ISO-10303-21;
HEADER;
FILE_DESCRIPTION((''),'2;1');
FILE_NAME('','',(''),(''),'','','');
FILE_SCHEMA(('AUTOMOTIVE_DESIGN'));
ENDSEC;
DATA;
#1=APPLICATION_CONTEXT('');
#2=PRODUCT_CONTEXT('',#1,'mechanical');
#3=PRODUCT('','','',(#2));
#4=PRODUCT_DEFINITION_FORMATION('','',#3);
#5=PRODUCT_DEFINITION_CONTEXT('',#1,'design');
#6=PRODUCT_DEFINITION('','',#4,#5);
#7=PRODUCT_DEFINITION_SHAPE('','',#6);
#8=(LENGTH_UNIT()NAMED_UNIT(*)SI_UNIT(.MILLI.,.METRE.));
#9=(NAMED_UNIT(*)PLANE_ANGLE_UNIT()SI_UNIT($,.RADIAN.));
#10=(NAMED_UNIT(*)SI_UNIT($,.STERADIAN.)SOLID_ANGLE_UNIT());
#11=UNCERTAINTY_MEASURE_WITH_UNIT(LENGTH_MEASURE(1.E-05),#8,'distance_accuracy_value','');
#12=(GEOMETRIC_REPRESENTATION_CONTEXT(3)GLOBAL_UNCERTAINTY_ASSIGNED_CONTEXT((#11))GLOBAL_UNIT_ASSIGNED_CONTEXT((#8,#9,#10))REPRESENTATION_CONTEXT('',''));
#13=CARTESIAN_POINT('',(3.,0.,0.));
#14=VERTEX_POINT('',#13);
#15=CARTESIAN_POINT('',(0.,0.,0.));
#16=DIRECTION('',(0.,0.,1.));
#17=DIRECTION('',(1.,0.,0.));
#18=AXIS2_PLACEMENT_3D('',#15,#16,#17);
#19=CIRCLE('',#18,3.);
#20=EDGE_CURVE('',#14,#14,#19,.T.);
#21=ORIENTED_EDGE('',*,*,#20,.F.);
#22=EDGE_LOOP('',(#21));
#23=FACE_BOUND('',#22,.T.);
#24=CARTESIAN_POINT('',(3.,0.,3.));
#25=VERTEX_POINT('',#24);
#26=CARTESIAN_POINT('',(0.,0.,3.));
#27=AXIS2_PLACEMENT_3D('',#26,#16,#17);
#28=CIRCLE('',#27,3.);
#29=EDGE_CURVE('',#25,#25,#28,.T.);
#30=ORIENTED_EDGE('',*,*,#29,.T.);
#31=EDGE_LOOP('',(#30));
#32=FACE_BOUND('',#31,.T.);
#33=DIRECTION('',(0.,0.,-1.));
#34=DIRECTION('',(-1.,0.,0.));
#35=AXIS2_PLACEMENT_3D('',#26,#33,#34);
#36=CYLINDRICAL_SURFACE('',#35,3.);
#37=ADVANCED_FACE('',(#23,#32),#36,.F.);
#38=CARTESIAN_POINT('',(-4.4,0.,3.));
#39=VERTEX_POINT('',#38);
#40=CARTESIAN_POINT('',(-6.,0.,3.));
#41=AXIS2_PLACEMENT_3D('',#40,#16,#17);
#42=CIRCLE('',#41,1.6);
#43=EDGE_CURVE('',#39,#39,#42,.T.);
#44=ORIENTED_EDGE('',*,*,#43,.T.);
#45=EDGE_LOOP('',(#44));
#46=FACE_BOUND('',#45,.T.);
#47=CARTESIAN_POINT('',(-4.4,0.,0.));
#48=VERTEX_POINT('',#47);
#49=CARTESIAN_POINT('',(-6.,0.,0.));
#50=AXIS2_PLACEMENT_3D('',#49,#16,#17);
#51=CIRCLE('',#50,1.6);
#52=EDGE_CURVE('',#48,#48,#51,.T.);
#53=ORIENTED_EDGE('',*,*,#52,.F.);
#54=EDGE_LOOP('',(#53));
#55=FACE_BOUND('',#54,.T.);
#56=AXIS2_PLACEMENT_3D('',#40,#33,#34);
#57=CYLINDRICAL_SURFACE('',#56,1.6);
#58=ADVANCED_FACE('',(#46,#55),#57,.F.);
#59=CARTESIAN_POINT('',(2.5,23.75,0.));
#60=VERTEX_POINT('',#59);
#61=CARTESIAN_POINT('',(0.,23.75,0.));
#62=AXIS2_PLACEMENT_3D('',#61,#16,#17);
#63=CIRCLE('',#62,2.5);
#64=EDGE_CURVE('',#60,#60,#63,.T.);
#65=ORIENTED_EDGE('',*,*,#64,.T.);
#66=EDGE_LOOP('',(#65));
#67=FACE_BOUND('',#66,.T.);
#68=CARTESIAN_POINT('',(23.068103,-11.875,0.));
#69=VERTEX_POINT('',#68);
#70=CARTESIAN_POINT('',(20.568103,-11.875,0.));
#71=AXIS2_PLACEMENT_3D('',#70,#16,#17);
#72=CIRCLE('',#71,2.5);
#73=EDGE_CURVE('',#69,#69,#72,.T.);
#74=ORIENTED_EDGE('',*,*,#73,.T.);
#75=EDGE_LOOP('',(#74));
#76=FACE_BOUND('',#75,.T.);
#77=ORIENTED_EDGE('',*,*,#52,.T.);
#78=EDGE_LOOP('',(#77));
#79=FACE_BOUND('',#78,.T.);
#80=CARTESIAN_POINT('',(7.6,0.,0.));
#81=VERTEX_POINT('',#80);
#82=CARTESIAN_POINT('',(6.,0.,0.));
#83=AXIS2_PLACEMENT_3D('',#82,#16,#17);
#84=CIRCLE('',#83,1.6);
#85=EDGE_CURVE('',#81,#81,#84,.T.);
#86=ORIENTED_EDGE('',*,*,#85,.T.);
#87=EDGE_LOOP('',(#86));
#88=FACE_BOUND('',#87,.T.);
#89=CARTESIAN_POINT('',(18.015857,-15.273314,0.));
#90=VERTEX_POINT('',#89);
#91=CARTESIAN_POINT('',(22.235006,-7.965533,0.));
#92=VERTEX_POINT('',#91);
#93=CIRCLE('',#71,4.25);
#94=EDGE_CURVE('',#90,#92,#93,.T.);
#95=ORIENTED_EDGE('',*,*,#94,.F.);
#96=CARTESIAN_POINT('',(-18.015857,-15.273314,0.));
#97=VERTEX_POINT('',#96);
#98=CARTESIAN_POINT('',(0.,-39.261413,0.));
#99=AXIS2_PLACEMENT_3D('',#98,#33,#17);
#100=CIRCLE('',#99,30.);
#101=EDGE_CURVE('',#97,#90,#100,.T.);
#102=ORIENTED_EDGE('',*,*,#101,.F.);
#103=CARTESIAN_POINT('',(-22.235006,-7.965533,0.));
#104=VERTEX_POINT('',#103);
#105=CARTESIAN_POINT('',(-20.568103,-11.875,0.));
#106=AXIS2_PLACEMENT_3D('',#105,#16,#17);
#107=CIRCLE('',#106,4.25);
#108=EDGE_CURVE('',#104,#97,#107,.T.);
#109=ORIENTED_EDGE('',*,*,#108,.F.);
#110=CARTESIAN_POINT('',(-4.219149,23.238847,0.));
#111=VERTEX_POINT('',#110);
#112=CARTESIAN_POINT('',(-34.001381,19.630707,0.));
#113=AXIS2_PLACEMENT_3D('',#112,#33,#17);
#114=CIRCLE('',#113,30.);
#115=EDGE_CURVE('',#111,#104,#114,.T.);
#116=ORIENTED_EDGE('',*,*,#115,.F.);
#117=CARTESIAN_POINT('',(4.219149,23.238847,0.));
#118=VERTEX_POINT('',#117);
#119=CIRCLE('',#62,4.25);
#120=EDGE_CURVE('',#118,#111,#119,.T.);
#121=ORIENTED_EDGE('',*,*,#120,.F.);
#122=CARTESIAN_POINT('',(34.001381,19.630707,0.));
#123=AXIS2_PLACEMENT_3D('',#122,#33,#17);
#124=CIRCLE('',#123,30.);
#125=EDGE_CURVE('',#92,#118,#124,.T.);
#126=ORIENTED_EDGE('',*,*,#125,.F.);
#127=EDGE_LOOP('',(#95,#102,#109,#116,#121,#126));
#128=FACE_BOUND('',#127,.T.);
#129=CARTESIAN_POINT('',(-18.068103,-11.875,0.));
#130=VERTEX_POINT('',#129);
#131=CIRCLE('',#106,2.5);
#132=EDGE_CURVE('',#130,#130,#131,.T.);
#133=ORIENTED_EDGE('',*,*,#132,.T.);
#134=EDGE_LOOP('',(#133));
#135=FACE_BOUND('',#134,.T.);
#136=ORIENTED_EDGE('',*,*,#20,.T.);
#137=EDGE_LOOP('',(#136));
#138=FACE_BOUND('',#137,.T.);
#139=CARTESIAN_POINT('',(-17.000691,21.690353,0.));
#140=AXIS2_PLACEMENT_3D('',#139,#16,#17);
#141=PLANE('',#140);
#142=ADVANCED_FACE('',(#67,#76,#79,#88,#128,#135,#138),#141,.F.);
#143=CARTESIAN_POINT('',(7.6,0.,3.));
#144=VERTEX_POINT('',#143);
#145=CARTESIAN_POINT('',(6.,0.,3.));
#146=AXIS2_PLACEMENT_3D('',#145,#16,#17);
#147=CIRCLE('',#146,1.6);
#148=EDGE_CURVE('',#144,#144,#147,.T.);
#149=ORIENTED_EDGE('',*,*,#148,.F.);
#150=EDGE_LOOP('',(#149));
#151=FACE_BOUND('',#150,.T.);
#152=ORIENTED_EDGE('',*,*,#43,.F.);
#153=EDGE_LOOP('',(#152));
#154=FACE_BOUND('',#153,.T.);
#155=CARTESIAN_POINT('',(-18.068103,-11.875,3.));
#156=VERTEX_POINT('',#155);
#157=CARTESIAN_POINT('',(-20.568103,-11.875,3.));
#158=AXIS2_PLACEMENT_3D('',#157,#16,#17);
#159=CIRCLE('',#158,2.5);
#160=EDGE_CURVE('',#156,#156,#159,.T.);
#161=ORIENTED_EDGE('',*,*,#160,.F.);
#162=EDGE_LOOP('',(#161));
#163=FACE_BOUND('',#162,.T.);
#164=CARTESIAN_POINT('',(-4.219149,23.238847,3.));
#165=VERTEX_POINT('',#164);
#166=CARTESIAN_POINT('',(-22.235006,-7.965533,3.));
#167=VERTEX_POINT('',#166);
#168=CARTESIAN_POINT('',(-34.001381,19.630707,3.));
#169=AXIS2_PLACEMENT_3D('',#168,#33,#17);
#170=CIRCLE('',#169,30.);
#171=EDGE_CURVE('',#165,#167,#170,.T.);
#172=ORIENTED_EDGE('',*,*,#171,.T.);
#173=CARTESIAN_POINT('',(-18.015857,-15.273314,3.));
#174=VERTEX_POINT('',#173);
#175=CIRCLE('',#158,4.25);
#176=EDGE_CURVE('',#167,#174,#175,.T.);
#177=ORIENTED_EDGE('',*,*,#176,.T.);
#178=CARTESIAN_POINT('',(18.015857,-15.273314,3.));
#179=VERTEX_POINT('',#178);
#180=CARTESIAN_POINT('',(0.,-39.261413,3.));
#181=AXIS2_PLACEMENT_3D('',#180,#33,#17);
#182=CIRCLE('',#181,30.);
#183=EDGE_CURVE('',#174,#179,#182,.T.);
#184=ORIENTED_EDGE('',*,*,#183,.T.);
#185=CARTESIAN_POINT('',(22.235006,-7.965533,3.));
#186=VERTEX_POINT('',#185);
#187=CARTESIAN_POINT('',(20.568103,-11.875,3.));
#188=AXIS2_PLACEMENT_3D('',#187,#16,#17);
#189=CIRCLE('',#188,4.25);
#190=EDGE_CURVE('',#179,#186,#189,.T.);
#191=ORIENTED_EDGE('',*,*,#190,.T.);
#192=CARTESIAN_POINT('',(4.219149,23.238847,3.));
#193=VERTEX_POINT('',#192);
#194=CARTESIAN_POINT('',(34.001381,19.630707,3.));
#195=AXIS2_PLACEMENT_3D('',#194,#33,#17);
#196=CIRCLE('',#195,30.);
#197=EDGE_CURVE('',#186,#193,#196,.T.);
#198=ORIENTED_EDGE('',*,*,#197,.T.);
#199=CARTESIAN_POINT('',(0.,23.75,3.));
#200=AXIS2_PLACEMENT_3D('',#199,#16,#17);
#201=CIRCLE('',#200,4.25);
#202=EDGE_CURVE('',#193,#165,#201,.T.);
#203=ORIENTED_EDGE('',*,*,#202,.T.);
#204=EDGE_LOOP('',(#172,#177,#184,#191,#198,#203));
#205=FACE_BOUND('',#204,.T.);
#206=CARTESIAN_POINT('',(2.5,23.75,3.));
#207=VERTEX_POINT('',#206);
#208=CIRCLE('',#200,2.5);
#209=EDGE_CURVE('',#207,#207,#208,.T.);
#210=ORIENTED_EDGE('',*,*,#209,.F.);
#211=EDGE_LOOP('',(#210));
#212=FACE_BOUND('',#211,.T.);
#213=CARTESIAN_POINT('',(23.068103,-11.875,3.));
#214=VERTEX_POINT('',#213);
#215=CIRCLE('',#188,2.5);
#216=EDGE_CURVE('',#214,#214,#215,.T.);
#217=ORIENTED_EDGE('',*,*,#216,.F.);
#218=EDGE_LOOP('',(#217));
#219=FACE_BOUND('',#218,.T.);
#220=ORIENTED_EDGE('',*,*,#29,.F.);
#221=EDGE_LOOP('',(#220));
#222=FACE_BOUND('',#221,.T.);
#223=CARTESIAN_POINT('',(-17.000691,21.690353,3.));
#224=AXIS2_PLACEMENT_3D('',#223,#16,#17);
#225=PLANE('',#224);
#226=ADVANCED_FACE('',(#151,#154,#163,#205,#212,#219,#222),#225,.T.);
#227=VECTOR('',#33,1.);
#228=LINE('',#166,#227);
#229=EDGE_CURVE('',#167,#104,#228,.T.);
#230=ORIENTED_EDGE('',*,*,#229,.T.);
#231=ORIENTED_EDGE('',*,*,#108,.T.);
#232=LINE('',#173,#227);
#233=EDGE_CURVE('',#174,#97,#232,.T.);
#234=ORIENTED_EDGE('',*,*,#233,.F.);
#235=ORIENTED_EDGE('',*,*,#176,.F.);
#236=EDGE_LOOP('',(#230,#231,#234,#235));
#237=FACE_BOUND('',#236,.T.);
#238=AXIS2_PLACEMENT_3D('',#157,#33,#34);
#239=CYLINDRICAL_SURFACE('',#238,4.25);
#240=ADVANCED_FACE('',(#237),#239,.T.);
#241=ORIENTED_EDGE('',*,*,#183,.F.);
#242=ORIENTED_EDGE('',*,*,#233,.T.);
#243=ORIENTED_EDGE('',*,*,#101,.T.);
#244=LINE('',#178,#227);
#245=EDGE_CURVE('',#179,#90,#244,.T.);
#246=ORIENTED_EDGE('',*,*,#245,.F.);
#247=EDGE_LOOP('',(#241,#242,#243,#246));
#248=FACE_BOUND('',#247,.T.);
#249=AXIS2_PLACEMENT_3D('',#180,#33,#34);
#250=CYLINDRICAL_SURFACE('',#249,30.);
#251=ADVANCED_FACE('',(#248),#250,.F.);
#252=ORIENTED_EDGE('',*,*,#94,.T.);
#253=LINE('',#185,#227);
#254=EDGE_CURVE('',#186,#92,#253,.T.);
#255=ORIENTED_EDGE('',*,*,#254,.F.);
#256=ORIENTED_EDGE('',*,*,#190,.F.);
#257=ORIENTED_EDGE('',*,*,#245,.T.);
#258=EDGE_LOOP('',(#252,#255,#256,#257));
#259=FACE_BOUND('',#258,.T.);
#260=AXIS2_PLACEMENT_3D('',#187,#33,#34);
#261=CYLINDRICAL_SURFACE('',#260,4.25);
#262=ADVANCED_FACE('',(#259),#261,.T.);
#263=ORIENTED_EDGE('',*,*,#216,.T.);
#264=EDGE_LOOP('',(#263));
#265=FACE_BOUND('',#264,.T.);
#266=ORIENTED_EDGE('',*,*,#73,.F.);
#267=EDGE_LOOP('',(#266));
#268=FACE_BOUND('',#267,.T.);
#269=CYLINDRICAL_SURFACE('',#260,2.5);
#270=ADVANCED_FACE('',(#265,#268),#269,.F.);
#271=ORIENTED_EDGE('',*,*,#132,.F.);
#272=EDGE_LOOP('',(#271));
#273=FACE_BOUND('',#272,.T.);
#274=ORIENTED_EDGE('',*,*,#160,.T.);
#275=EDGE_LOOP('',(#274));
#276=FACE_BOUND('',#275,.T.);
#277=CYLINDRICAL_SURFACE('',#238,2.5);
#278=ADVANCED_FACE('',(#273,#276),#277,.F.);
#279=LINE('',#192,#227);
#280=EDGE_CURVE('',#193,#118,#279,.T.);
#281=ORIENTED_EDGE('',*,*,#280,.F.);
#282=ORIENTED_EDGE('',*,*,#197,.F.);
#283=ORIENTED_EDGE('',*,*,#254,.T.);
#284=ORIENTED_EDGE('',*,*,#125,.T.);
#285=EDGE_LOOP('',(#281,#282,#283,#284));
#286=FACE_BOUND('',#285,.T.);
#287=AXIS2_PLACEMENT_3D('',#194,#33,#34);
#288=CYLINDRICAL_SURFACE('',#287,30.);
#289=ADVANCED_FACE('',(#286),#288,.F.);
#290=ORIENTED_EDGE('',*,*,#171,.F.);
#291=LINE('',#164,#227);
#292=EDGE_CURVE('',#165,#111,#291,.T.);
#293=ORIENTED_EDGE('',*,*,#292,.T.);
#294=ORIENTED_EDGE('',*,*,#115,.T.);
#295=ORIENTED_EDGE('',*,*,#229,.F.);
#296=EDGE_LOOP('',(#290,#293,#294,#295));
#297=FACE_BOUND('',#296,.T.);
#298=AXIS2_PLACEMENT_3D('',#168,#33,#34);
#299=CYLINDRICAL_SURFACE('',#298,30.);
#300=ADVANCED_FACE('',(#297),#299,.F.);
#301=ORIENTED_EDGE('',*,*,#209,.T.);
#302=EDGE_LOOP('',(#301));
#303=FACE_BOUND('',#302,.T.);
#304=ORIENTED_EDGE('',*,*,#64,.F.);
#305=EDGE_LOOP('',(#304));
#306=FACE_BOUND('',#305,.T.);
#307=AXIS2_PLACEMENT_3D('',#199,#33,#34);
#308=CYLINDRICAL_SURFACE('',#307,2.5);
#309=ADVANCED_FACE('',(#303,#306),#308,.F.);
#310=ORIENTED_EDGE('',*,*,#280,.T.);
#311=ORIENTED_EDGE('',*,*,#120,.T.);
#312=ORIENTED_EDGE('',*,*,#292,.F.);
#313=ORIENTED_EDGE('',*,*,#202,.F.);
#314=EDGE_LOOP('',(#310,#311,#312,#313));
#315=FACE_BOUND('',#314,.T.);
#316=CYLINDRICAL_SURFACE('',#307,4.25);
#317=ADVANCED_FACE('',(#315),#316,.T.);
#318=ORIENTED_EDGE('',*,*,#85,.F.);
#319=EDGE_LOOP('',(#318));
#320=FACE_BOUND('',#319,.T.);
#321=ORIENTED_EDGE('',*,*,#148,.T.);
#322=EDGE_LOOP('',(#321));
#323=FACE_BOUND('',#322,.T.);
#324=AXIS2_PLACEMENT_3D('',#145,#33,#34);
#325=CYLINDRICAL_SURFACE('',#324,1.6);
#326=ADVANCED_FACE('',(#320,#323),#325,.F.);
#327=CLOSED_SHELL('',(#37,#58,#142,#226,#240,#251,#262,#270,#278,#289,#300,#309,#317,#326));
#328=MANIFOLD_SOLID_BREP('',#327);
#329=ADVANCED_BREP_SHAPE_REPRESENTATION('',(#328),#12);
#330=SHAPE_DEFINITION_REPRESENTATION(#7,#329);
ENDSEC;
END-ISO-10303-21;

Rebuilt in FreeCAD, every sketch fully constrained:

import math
import FreeCAD as App
import Part
import Sketcher

V = App.Vector

doc = App.newDocument("Part")
body = doc.addObject("PartDesign::Body", "Body")

sketch1 = doc.addObject("Sketcher::SketchObject", "Sketch")
body.addObject(sketch1)
sketch1.AttachmentSupport = (doc.XY_Plane, [""])
sketch1.MapMode = "FlatFace"
sketch1.addGeometry([
    Part.ArcOfCircle(Part.Circle(V(-20.6, -11.9, 0), V(0, 0, 1), 4.2), math.radians(113), math.radians(307)),
    Part.ArcOfCircle(Part.Circle(V(0, -39.3, 0), V(0, 0, 1), 30), math.radians(53), math.radians(127)),
    Part.ArcOfCircle(Part.Circle(V(20.6, -11.9, 0), V(0, 0, 1), 4.2), math.radians(-127), math.radians(67)),
    Part.ArcOfCircle(Part.Circle(V(34, 19.6, 0), V(0, 0, 1), 30), math.radians(173), math.radians(247)),
    Part.ArcOfCircle(Part.Circle(V(0, 23.8, 0), V(0, 0, 1), 4.2), math.radians(-7), math.radians(187)),
    Part.ArcOfCircle(Part.Circle(V(-34, 19.6, 0), V(0, 0, 1), 30), math.radians(-67), math.radians(7)),
    Part.Circle(V(-20.6, -11.9, 0), V(0, 0, 1), 2.5),
    Part.Circle(V(-6, 0, 0), V(0, 0, 1), 1.6),
    Part.Circle(V(20.6, -11.9, 0), V(0, 0, 1), 2.5),
    Part.Circle(V(0, 0, 0), V(0, 0, 1), 3),
    Part.Circle(V(6, 0, 0), V(0, 0, 1), 1.6),
    Part.Circle(V(0, 23.8, 0), V(0, 0, 1), 2.5),
], False)
sketch1.addConstraint([
    Sketcher.Constraint("Tangent", 0, 2, 1, 2),
    Sketcher.Constraint("Tangent", 1, 1, 2, 1),
    Sketcher.Constraint("Tangent", 2, 2, 3, 2),
    Sketcher.Constraint("Tangent", 3, 1, 4, 1),
    Sketcher.Constraint("Tangent", 4, 2, 5, 2),
    Sketcher.Constraint("Tangent", 5, 1, 0, 1),
    Sketcher.Constraint("Coincident", 9, 3, -1, 1),
    Sketcher.Constraint("Coincident", 6, 3, 0, 3),
    Sketcher.Constraint("Coincident", 8, 3, 2, 3),
    Sketcher.Constraint("Coincident", 11, 3, 4, 3),
    Sketcher.Constraint("Equal", 0, 2),
    Sketcher.Constraint("Equal", 1, 3),
    Sketcher.Constraint("Equal", 2, 4),
    Sketcher.Constraint("Equal", 3, 5),
    Sketcher.Constraint("Equal", 6, 8),
    Sketcher.Constraint("Equal", 7, 10),
    Sketcher.Constraint("Equal", 8, 11),
    Sketcher.Constraint("Symmetric", 7, 3, 10, 3, -1, 1),
    Sketcher.Constraint("Symmetric", 0, 3, 2, 3, -2),
    Sketcher.Constraint("PointOnObject", 4, 3, -2),
    Sketcher.Constraint("PointOnObject", 7, 3, -1),
    Sketcher.Constraint("Diameter", 6, 5.0),
    Sketcher.Constraint("Diameter", 9, 6.0),
    Sketcher.Constraint("Radius", 1, 30.0),
    Sketcher.Constraint("Diameter", 7, 3.2),
    Sketcher.Constraint("Radius", 0, 4.25),
    Sketcher.Constraint("DistanceX", 7, 3, -1, 1, 6.0),
    Sketcher.Constraint("DistanceY", -1, 1, 4, 3, 23.75),
    Sketcher.Constraint("DistanceY", 0, 3, -1, 1, 11.875),
    Sketcher.Constraint("DistanceX", -1, 1, 3, 3, 34.001381),
])
pad1 = doc.addObject("PartDesign::Pad", "Pad")
body.addObject(pad1)
pad1.Profile = sketch1
pad1.Length = 3

doc.recompute()
